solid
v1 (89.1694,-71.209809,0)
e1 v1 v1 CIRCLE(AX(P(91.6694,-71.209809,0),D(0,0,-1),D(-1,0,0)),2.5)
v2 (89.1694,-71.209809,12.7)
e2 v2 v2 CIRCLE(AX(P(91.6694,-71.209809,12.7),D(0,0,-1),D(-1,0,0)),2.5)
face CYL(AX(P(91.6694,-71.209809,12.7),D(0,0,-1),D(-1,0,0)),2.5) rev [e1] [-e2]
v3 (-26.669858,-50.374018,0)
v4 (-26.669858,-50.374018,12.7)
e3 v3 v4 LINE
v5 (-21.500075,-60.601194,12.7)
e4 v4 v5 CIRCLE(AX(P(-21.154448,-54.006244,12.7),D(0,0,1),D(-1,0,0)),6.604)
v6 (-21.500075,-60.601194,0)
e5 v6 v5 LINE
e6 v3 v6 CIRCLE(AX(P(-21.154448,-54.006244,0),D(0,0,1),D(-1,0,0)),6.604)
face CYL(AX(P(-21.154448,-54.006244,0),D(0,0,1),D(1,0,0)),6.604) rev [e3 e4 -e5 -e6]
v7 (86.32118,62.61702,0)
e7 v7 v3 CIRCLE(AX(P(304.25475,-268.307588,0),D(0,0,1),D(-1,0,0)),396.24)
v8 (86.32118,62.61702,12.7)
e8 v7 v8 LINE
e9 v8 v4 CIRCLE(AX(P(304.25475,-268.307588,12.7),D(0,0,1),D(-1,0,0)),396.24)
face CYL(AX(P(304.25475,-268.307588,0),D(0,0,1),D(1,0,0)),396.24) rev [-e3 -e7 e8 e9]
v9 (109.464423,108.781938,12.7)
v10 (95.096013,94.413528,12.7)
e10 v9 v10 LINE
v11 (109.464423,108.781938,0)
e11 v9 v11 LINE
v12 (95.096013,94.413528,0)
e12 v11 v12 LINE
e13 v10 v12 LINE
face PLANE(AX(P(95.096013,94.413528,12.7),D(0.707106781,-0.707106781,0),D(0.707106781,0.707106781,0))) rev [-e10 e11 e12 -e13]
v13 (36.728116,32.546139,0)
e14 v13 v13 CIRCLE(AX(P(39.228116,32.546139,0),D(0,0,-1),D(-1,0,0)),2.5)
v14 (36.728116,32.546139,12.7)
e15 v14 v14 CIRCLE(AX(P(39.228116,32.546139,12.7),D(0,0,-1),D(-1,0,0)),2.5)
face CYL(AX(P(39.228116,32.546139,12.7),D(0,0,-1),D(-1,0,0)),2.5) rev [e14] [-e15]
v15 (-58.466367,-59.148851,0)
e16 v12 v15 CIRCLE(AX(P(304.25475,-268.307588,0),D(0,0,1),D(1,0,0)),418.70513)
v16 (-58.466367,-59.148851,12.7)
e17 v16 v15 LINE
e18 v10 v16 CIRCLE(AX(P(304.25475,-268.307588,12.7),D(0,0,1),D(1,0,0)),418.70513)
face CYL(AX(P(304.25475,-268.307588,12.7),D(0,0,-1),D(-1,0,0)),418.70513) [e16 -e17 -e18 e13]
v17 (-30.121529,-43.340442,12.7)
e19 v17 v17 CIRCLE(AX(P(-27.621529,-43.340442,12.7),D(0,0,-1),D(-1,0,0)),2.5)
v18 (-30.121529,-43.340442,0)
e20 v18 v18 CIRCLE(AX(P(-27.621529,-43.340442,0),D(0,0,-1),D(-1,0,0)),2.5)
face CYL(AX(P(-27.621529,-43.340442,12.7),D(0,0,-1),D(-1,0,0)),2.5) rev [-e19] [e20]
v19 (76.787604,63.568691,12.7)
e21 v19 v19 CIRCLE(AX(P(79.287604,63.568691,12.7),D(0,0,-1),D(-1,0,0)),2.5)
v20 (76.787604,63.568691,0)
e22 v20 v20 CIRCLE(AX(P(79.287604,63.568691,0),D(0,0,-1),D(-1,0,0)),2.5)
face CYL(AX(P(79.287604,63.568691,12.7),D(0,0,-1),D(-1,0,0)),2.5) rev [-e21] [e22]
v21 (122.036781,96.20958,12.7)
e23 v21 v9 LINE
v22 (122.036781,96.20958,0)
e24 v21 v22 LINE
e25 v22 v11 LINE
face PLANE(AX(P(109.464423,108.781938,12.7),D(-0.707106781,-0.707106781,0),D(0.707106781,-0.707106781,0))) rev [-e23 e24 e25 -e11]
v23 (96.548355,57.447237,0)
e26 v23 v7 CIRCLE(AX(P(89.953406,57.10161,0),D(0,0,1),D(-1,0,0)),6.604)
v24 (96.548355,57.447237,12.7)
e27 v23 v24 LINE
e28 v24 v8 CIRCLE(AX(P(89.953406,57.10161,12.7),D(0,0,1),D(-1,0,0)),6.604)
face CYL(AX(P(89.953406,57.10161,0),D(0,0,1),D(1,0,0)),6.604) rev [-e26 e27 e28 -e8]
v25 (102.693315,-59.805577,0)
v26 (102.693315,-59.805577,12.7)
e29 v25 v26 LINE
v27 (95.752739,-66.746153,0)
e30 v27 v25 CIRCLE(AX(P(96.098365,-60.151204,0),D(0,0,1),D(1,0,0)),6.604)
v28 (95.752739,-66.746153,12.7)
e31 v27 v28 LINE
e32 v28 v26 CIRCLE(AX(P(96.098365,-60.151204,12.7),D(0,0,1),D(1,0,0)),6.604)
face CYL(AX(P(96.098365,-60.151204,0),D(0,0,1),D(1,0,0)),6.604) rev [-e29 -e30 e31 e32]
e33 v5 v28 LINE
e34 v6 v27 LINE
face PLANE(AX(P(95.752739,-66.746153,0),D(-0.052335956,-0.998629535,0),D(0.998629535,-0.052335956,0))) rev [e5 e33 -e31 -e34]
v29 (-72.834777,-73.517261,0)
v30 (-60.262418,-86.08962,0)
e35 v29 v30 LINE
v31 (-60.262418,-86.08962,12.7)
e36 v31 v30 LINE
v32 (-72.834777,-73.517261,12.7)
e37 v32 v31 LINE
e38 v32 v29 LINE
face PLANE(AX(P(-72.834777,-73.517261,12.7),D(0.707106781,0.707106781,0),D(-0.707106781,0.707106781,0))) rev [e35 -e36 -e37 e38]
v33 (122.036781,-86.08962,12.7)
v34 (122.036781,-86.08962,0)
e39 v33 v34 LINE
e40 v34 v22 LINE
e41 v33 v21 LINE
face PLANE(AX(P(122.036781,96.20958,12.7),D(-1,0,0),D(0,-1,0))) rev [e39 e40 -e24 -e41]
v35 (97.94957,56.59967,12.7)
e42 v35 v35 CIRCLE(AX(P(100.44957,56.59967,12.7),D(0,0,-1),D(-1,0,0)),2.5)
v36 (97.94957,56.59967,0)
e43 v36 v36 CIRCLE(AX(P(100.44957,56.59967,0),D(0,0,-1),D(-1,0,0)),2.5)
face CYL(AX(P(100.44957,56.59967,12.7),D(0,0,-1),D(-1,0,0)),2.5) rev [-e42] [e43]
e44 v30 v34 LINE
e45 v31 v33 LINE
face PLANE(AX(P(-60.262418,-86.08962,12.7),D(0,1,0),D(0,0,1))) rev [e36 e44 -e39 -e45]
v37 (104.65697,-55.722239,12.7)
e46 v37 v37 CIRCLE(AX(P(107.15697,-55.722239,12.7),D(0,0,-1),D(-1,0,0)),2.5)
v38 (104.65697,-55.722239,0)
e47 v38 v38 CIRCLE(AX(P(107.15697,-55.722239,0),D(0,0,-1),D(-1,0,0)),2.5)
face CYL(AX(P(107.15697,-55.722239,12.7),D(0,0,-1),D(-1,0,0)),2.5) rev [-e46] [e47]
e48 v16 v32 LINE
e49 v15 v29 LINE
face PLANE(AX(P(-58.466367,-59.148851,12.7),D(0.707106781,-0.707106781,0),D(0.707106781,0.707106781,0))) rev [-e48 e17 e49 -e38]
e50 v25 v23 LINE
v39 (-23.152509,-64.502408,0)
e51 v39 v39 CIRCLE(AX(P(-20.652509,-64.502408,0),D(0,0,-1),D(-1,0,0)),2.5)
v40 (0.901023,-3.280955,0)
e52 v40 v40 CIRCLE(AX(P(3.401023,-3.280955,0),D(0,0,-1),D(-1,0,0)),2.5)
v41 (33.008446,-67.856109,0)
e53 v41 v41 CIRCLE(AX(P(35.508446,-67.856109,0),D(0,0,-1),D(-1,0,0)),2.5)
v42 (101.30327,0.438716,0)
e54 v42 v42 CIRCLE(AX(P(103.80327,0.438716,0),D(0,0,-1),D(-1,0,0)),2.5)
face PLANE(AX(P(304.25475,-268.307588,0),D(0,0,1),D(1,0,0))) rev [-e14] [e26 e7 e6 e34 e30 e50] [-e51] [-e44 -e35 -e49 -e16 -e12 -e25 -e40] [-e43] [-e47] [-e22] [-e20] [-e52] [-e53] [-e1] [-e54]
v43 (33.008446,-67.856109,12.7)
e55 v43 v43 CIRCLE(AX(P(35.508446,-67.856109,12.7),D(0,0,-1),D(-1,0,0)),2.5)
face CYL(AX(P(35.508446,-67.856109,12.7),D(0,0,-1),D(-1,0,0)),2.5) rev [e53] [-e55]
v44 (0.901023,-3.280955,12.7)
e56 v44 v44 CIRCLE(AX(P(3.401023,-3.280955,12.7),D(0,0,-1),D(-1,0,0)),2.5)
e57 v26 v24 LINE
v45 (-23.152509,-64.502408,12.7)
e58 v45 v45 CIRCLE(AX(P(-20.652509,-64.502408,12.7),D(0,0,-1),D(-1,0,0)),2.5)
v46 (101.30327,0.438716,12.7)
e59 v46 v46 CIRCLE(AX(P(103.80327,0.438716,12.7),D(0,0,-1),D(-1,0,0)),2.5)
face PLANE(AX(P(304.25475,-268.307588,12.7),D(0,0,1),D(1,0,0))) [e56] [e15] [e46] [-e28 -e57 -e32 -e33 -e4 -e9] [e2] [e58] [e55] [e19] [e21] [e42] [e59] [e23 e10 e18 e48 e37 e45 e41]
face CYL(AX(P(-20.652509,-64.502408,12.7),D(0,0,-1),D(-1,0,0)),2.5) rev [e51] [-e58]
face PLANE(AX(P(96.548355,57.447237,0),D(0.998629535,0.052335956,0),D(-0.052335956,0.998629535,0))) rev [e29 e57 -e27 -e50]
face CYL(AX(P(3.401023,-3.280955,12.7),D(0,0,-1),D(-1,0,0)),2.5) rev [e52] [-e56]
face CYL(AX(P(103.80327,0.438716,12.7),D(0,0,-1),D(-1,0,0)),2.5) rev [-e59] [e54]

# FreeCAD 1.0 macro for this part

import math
import FreeCAD as App
import Part
import Sketcher

V = App.Vector
Q = App.Units.Quantity

doc = App.newDocument("Part")
params = doc.addObject("Spreadsheet::Sheet", "Params")
for row, (alias, value) in enumerate([
    ("sketch1_length", "0.7 in"),
    ("sketch1_length2", "0.8 in"),
    ("pad1_length", "0.5 in"),
    ("sketch2_radius", "15.6 in"),
    ("sketch2_radius2", "0.26 in"),
], start=1):
    params.set(f"A{row}", alias)
    params.set(f"B{row}", "=" + value)
    params.setAlias(f"B{row}", alias)

body = doc.addObject("PartDesign::Body", "Body")

sketch1 = body.newObject("Sketcher::SketchObject", "Sketch")
sketch1.AttachmentSupport = (doc.getObject("XY_Plane"), [""])
sketch1.MapMode = "FlatFace"
sketch1.addGeometry([
    Part.LineSegment(V(-60, -86, 0), V(122, -86, 0)),
    Part.LineSegment(V(122, -86, 0), V(122, 96, 0)),
    Part.LineSegment(V(122, 96, 0), V(109, 109, 0)),
    Part.LineSegment(V(109, 109, 0), V(95, 94, 0)),
    Part.ArcOfCircle(Part.Circle(V(304, -268, 0), V(0, 0, 1), 419), math.radians(120), math.radians(150)),
    Part.LineSegment(V(-58, -59, 0), V(-73, -74, 0)),
    Part.LineSegment(V(-73, -74, 0), V(-60, -86, 0)),
], False)
sketch1.addConstraint([
    Sketcher.Constraint("Coincident", 0, 2, 1, 1),
    Sketcher.Constraint("Coincident", 1, 2, 2, 1),
    Sketcher.Constraint("Coincident", 2, 2, 3, 1),
    Sketcher.Constraint("Coincident", 3, 2, 4, 1),
    Sketcher.Constraint("Coincident", 4, 2, 5, 1),
    Sketcher.Constraint("Coincident", 5, 2, 6, 1),
    Sketcher.Constraint("Coincident", 6, 2, 0, 1),
    Sketcher.Constraint("Horizontal", 0),
    Sketcher.Constraint("Vertical", 1),
    Sketcher.Constraint("Perpendicular", 2, 3),
    Sketcher.Constraint("Parallel", 3, 5),
    Sketcher.Constraint("Perpendicular", 5, 6),
    Sketcher.Constraint("Equal", 0, 1),
    Sketcher.Constraint("Equal", 3, 5),
    Sketcher.Constraint("Equal", 2, 6),
    Sketcher.Constraint("Angle", 2, Q("135 deg")),
    Sketcher.Constraint("Distance", 2, Q("0.7 in")),
    Sketcher.Constraint("Distance", 3, Q("0.8 in")),
    Sketcher.Constraint("Radius", 4, Q("418.70513 mm")),
    Sketcher.Constraint("DistanceX", 0, 1, 0, 2, Q("182.299199 mm")),
    Sketcher.Constraint("DistanceX", -1, 1, 4, 3, Q("304.25475 mm")),
    Sketcher.Constraint("DistanceY", 4, 3, -1, 1, Q("268.307588 mm")),
])
sketch1.setExpression("Constraints[16]", "Params.sketch1_length")
sketch1.setExpression("Constraints[17]", "Params.sketch1_length2")
pad1 = body.newObject("PartDesign::Pad", "Pad")
pad1.Profile = sketch1
pad1.setExpression("Length", "Params.pad1_length")

sketch2 = body.newObject("Sketcher::SketchObject", "Sketch001")
sketch2.AttachmentSupport = (doc.getObject("XY_Plane"), [""])
sketch2.MapMode = "FlatFace"
sketch2.AttachmentOffset = App.Placement(V(0, 0, 0.5 * 25.4), App.Rotation())
sketch2.addGeometry([
    Part.LineSegment(V(103, -60, 0), V(97, 57, 0)),
    Part.ArcOfCircle(Part.Circle(V(90, 57, 0), V(0, 0, 1), 7), math.radians(3), math.radians(123)),
    Part.ArcOfCircle(Part.Circle(V(304, -268, 0), V(0, 0, 1), 396), math.radians(123), math.radians(147)),
    Part.ArcOfCircle(Part.Circle(V(-21, -54, 0), V(0, 0, 1), 7), math.radians(147), math.radians(267)),
    Part.LineSegment(V(-22, -61, 0), V(96, -67, 0)),
    Part.ArcOfCircle(Part.Circle(V(96, -60, 0), V(0, 0, 1), 7), math.radians(-93), math.radians(3)),
], False)
sketch2.addConstraint([
    Sketcher.Constraint("Tangent", 0, 2, 1, 1),
    Sketcher.Constraint("Tangent", 1, 2, 2, 1),
    Sketcher.Constraint("Tangent", 2, 2, 3, 1),
    Sketcher.Constraint("Tangent", 3, 2, 4, 1),
    Sketcher.Constraint("Tangent", 4, 2, 5, 1),
    Sketcher.Constraint("Tangent", 5, 2, 0, 1),
    Sketcher.Constraint("Equal", 1, 3),
    Sketcher.Constraint("Equal", 3, 5),
    Sketcher.Constraint("Equal", 0, 4),
    Sketcher.Constraint("Radius", 2, Q("15.6 in")),
    Sketcher.Constraint("Radius", 1, Q("0.26 in")),
    Sketcher.Constraint("Angle", 0, Q("93 deg")),
    Sketcher.Constraint("Angle", 4, Q("-3 deg")),
    Sketcher.Constraint("DistanceY", 2, 3, 1, 3, Q("325.409198 mm")),
    Sketcher.Constraint("DistanceY", -1, 1, 1, 3, Q("57.10161 mm")),
    Sketcher.Constraint("DistanceX", -1, 1, 2, 3, Q("304.25475 mm")),
])
sketch2.setExpression("Constraints[9]", "Params.sketch2_radius")
sketch2.setExpression("Constraints[10]", "Params.sketch2_radius2")
pocket1 = body.newObject("PartDesign::Pocket", "Pocket")
pocket1.Profile = sketch2
pocket1.Type = "ThroughAll"

sketch3 = body.newObject("Sketcher::SketchObject", "Sketch002")
sketch3.AttachmentSupport = (doc.getObject("XY_Plane"), [""])
sketch3.MapMode = "FlatFace"
sketch3.addGeometry([
    Part.Circle(V(100.4, 56.6, 0), V(0, 0, 1), 2.5),
    Part.Circle(V(79.3, 63.6, 0), V(0, 0, 1), 2.5),
    Part.Circle(V(39.2, 32.5, 0), V(0, 0, 1), 2.5),
    Part.Circle(V(3.4, -3.3, 0), V(0, 0, 1), 2.5),
    Part.Circle(V(-27.6, -43.3, 0), V(0, 0, 1), 2.5),
    Part.Circle(V(-20.7, -64.5, 0), V(0, 0, 1), 2.5),
    Part.Circle(V(35.5, -67.9, 0), V(0, 0, 1), 2.5),
    Part.Circle(V(91.7, -71.2, 0), V(0, 0, 1), 2.5),
    Part.Circle(V(107.2, -55.7, 0), V(0, 0, 1), 2.5),
    Part.Circle(V(103.8, 0.4, 0), V(0, 0, 1), 2.5),
], False)
sketch3.addConstraint([
    Sketcher.Constraint("Equal", 0, 1),
    Sketcher.Constraint("Equal", 1, 2),
    Sketcher.Constraint("Equal", 2, 3),
    Sketcher.Constraint("Equal", 3, 4),
    Sketcher.Constraint("Equal", 4, 5),
    Sketcher.Constraint("Equal", 5, 6),
    Sketcher.Constraint("Equal", 6, 7),
    Sketcher.Constraint("Equal", 7, 8),
    Sketcher.Constraint("Equal", 8, 9),
    Sketcher.Constraint("Diameter", 0, Q("5 mm")),
    Sketcher.Constraint("DistanceX", -1, 1, 7, 3, Q("91.6694 mm")),
    Sketcher.Constraint("DistanceX", 4, 3, 0, 3, Q("128.071099 mm")),
    Sketcher.Constraint("DistanceY", 5, 3, 1, 3, Q("128.071099 mm")),
    Sketcher.Constraint("DistanceY", 6, 3, 5, 3, Q("3.3537 mm")),
    Sketcher.Constraint("DistanceY", 7, 3, 6, 3, Q("3.3537 mm")),
    Sketcher.Constraint("DistanceX", 0, 3, 8, 3, Q("6.707401 mm")),
    Sketcher.Constraint("DistanceX", 9, 3, 8, 3, Q("3.3537 mm")),
    Sketcher.Constraint("DistanceX", -1, 1, 0, 3, Q("100.44957 mm")),
    Sketcher.Constraint("DistanceY", -1, 1, 0, 3, Q("56.59967 mm")),
    Sketcher.Constraint("DistanceY", -1, 1, 1, 3, Q("63.568691 mm")),
    Sketcher.Constraint("DistanceY", -1, 1, 2, 3, Q("32.546139 mm")),
    Sketcher.Constraint("DistanceX", 5, 3, -1, 1, Q("20.652509 mm")),
    Sketcher.Constraint("DistanceY", 8, 3, -1, 1, Q("55.722239 mm")),
    Sketcher.Constraint("DistanceX", 3, 3, 1, 3, Q("75.886581 mm")),
    Sketcher.Constraint("DistanceY", 4, 3, 2, 3, Q("75.886581 mm")),
    Sketcher.Constraint("DistanceX", 5, 3, 3, 3, Q("24.053531 mm")),
    Sketcher.Constraint("DistanceX", 6, 3, 2, 3, Q("3.71967 mm")),
    Sketcher.Constraint("DistanceX", -1, 1, 2, 3, Q("39.228116 mm")),
    Sketcher.Constraint("DistanceY", 3, 3, -1, 1, Q("3.280955 mm")),
    Sketcher.Constraint("DistanceY", -1, 1, 9, 3, Q("0.438716 mm")),
])
pocket2 = body.newObject("PartDesign::Pocket", "Pocket001")
pocket2.Profile = sketch3
pocket2.Type = "ThroughAll"
pocket2.Reversed = True

doc.recompute()
